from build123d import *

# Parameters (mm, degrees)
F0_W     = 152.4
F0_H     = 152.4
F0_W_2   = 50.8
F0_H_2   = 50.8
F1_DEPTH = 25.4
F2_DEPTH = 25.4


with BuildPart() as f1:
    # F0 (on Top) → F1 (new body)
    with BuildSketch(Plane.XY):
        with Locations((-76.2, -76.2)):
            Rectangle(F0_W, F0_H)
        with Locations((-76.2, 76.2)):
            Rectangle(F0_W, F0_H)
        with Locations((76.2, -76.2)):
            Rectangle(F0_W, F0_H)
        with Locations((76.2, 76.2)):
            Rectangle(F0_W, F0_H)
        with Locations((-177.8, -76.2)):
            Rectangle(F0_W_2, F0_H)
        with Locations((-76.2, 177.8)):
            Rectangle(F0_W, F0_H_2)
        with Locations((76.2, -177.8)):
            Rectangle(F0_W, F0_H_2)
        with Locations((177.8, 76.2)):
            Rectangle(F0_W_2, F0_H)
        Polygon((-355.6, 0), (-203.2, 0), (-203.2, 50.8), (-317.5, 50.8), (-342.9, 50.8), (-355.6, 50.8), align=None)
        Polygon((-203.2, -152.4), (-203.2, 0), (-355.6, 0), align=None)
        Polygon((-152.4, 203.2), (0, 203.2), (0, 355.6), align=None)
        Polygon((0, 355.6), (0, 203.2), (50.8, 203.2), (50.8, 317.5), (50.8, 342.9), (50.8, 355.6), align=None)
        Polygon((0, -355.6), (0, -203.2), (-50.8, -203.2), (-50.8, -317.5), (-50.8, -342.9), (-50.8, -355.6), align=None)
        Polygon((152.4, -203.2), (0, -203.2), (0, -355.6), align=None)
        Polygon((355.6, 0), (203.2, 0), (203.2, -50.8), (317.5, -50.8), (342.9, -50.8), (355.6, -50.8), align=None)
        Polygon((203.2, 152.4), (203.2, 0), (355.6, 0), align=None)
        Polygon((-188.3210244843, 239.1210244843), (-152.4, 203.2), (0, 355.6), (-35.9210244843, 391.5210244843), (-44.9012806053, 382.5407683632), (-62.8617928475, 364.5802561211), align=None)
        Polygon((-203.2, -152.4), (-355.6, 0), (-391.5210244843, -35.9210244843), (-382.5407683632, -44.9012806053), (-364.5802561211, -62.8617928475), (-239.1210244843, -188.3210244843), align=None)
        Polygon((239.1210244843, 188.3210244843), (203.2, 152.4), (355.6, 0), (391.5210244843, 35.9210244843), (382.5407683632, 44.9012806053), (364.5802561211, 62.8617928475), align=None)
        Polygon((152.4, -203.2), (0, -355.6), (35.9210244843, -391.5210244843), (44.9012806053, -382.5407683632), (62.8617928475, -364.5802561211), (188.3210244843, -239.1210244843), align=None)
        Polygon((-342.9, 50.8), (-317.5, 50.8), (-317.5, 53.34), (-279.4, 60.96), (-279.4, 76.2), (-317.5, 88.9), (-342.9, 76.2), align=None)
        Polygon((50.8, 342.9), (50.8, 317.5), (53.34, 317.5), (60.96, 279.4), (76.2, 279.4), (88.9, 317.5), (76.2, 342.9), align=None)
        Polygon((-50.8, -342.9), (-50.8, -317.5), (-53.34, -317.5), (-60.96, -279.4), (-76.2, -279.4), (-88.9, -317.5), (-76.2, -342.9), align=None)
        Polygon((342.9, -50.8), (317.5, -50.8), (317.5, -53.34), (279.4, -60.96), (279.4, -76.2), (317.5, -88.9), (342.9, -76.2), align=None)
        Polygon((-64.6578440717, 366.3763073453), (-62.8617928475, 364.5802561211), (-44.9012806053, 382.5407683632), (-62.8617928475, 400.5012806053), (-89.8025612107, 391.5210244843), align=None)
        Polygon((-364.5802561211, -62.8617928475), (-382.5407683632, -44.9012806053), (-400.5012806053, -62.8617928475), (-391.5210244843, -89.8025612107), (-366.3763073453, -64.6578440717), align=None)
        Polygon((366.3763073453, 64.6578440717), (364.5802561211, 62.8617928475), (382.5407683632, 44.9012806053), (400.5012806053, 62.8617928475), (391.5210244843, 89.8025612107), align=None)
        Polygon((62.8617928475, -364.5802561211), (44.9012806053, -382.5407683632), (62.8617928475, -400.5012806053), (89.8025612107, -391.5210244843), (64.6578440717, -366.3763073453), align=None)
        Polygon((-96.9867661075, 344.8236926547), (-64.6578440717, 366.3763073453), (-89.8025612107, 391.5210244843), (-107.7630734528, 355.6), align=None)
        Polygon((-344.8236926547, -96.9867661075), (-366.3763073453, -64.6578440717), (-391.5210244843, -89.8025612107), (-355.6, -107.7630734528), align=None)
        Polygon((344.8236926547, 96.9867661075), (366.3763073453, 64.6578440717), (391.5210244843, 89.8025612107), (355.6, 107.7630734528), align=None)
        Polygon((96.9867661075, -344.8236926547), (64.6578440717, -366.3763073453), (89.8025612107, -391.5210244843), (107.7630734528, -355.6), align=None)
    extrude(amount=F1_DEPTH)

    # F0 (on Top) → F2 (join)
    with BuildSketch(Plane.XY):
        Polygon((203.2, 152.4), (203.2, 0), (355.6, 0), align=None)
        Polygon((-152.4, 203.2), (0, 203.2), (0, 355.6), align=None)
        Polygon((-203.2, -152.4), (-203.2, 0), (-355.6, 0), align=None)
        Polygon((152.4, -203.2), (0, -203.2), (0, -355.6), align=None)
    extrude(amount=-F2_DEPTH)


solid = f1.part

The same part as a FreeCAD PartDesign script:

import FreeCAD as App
import Part
import Sketcher
Q = App.Units.Quantity


def add_polygon(sketch, points):
    """Adds a closed chain of lines whose ends are joined by coincident constraints."""
    first, n = sketch.GeometryCount, len(points)
    for a, b in zip(points, points[1:] + points[:1]):
        sketch.addGeometry(Part.LineSegment(App.Vector(*a, 0), App.Vector(*b, 0)), False)
    for i in range(n):
        sketch.addConstraint(Sketcher.Constraint("Coincident", first + i, 2, first + (i + 1) % n, 1))

doc = App.newDocument("Part")
body = doc.addObject("PartDesign::Body", "Body")

# Sketch on XY plane
sketch1 = doc.addObject("Sketcher::SketchObject", "Sketch")
body.addObject(sketch1)
sketch1.AttachmentSupport = (doc.XY_Plane, [""])
sketch1.MapMode = "FlatFace"
add_polygon(sketch1, [(0, 152.4), (0, 203.2), (50.8, 203.2), (50.8, 317.5), (53.34, 317.5), (60.96, 279.4), (76.2, 279.4), (88.9, 317.5), (76.2, 342.9), (50.8, 342.9), (50.8, 355.6), (0, 355.6), (-35.921024, 391.521024), (-44.901281, 382.540768), (-62.861793, 400.501281), (-89.802561, 391.521024), (-107.763073, 355.6), (-96.986766, 344.823693), (-64.657844, 366.376307), (-62.861793, 364.580256), (-188.321024, 239.121024), (-152.4, 203.2), (-152.4, 0), (-203.2, 0), (-203.2, 50.8), (-317.5, 50.8), (-317.5, 53.34), (-279.4, 60.96), (-279.4, 76.2), (-317.5, 88.9), (-342.9, 76.2), (-342.9, 50.8), (-355.6, 50.8), (-355.6, 0), (-391.521024, -35.921024), (-382.540768, -44.901281), (-400.501281, -62.861793), (-391.521024, -89.802561), (-355.6, -107.763073), (-344.823693, -96.986766), (-366.376307, -64.657844), (-364.580256, -62.861793), (-239.121024, -188.321024), (-203.2, -152.4), (0, -152.4), (0, -203.2), (-50.8, -203.2), (-50.8, -317.5), (-53.34, -317.5), (-60.96, -279.4), (-76.2, -279.4), (-88.9, -317.5), (-76.2, -342.9), (-50.8, -342.9), (-50.8, -355.6), (0, -355.6), (35.921024, -391.521024), (44.901281, -382.540768), (62.861793, -400.501281), (89.802561, -391.521024), (107.763073, -355.6), (96.986766, -344.823693), (64.657844, -366.376307), (62.861793, -364.580256), (188.321024, -239.121024), (152.4, -203.2), (152.4, 0), (203.2, 0), (203.2, -50.8), (317.5, -50.8), (317.5, -53.34), (279.4, -60.96), (279.4, -76.2), (317.5, -88.9), (342.9, -76.2), (342.9, -50.8), (355.6, -50.8), (355.6, 0), (391.521024, 35.921024), (382.540768, 44.901281), (400.501281, 62.861793), (391.521024, 89.802561), (355.6, 107.763073), (344.823693, 96.986766), (366.376307, 64.657844), (364.580256, 62.861793), (239.121024, 188.321024), (203.2, 152.4)])  # lines 0-87
sketch1.addConstraint([
    Sketcher.Constraint("Vertical", 0),
    Sketcher.Constraint("Horizontal", 1),
    Sketcher.Constraint("Vertical", 2),
    Sketcher.Constraint("Horizontal", 3),
    Sketcher.Constraint("Horizontal", 5),
    Sketcher.Constraint("Horizontal", 8),
    Sketcher.Constraint("Vertical", 9),
    Sketcher.Constraint("Horizontal", 10),
    Sketcher.Constraint("Vertical", 21),
    Sketcher.Constraint("Horizontal", 22),
    Sketcher.Constraint("Vertical", 23),
    Sketcher.Constraint("Horizontal", 24),
    Sketcher.Constraint("Vertical", 25),
    Sketcher.Constraint("Vertical", 27),
    Sketcher.Constraint("Vertical", 30),
    Sketcher.Constraint("Horizontal", 31),
    Sketcher.Constraint("Vertical", 32),
    Sketcher.Constraint("Horizontal", 43),
    Sketcher.Constraint("Vertical", 44),
    Sketcher.Constraint("Horizontal", 45),
    Sketcher.Constraint("Vertical", 46),
    Sketcher.Constraint("Horizontal", 47),
    Sketcher.Constraint("Horizontal", 49),
    Sketcher.Constraint("Horizontal", 52),
    Sketcher.Constraint("Vertical", 53),
    Sketcher.Constraint("Horizontal", 54),
    Sketcher.Constraint("Vertical", 65),
    Sketcher.Constraint("Horizontal", 66),
    Sketcher.Constraint("Vertical", 67),
    Sketcher.Constraint("Horizontal", 68),
    Sketcher.Constraint("Vertical", 69),
    Sketcher.Constraint("Vertical", 71),
    Sketcher.Constraint("Vertical", 74),
    Sketcher.Constraint("Horizontal", 75),
    Sketcher.Constraint("Vertical", 76),
    Sketcher.Constraint("Horizontal", 87),
    Sketcher.Constraint("Symmetric", 0, 2, 44, 2, -1, 1),
    Sketcher.Constraint("Symmetric", 2, 2, 46, 2, -1, 1),
    Sketcher.Constraint("Symmetric", 4, 2, 48, 2, -1, 1),
    Sketcher.Constraint("Symmetric", 6, 2, 50, 2, -1, 1),
    Sketcher.Constraint("Symmetric", 7, 2, 51, 2, -1, 1),
    Sketcher.Constraint("Symmetric", 9, 2, 53, 2, -1, 1),
    Sketcher.Constraint("Symmetric", 11, 2, 55, 2, -1, 1),
    Sketcher.Constraint("Symmetric", 12, 2, 56, 2, -1, 1),
    Sketcher.Constraint("Symmetric", 13, 2, 57, 2, -1, 1),
    Sketcher.Constraint("Symmetric", 14, 2, 58, 2, -1, 1),
    Sketcher.Constraint("Symmetric", 15, 2, 59, 2, -1, 1),
    Sketcher.Constraint("Symmetric", 16, 2, 60, 2, -1, 1),
    Sketcher.Constraint("Symmetric", 17, 2, 61, 2, -1, 1),
    Sketcher.Constraint("Symmetric", 18, 2, 62, 2, -1, 1),
    Sketcher.Constraint("Symmetric", 19, 2, 63, 2, -1, 1),
    Sketcher.Constraint("Symmetric", 20, 2, 64, 2, -1, 1),
    Sketcher.Constraint("Symmetric", 22, 2, 66, 2, -1, 1),
    Sketcher.Constraint("Symmetric", 24, 2, 68, 2, -1, 1),
    Sketcher.Constraint("Symmetric", 26, 2, 70, 2, -1, 1),
    Sketcher.Constraint("Symmetric", 28, 2, 72, 2, -1, 1),
    Sketcher.Constraint("Symmetric", 29, 2, 73, 2, -1, 1),
    Sketcher.Constraint("Symmetric", 31, 2, 75, 2, -1, 1),
    Sketcher.Constraint("Symmetric", 33, 2, 77, 2, -1, 1),
    Sketcher.Constraint("Symmetric", 34, 2, 78, 2, -1, 1),
    Sketcher.Constraint("Symmetric", 35, 2, 79, 2, -1, 1),
    Sketcher.Constraint("Symmetric", 36, 2, 80, 2, -1, 1),
    Sketcher.Constraint("Symmetric", 37, 2, 81, 2, -1, 1),
    Sketcher.Constraint("Symmetric", 38, 2, 82, 2, -1, 1),
    Sketcher.Constraint("Symmetric", 39, 2, 83, 2, -1, 1),
    Sketcher.Constraint("Symmetric", 40, 2, 84, 2, -1, 1),
    Sketcher.Constraint("Symmetric", 41, 2, 85, 2, -1, 1),
    Sketcher.Constraint("Symmetric", 42, 2, 86, 2, -1, 1),
    Sketcher.Constraint("PointOnObject", 0, 2, -2),
    Sketcher.Constraint("PointOnObject", 10, 2, -2),
    Sketcher.Constraint("PointOnObject", 21, 2, -1),
    Sketcher.Constraint("PointOnObject", 32, 2, -1),
    Sketcher.Constraint("PointOnObject", 54, 2, -2),
    Sketcher.Constraint("PointOnObject", 76, 2, -1),
    Sketcher.Constraint("Perpendicular", 11, 12),
    Sketcher.Constraint("Perpendicular", 12, 13),
    Sketcher.Constraint("Parallel", 13, 16),
    Sketcher.Constraint("Parallel", 16, 18),
    Sketcher.Constraint("Perpendicular", 18, 19),
    Sketcher.Constraint("Perpendicular", 19, 20),
    Sketcher.Constraint("Perpendicular", 4, 26),
    Sketcher.Constraint("Perpendicular", 6, 28),
    Sketcher.Constraint("Perpendicular", 7, 29),
    Sketcher.Constraint("Perpendicular", 20, 33),
    Sketcher.Constraint("Perpendicular", 33, 34),
    Sketcher.Constraint("Perpendicular", 34, 35),
    Sketcher.Constraint("Perpendicular", 14, 36),
    Sketcher.Constraint("Perpendicular", 15, 37),
    Sketcher.Constraint("Parallel", 35, 38),
    Sketcher.Constraint("Perpendicular", 17, 39),
    Sketcher.Constraint("Parallel", 38, 40),
    Sketcher.Constraint("Perpendicular", 40, 41),
    Sketcher.Constraint("Perpendicular", 41, 42),
    Sketcher.Constraint("Perpendicular", 26, 48),
    Sketcher.Constraint("Perpendicular", 28, 50),
    Sketcher.Constraint("Perpendicular", 48, 70),
    Sketcher.Constraint("Perpendicular", 50, 72),
    Sketcher.Constraint("Horizontal", 3, 2, 6, 2),
    Sketcher.Constraint("Horizontal", 11, 2, 14, 2),
    Sketcher.Constraint("Horizontal", 10, 2, 15, 2),
    Sketcher.Constraint("Horizontal", 1, 2, 20, 2),
    Sketcher.Constraint("Horizontal", 27, 2, 29, 2),
    Sketcher.Constraint("Horizontal", 24, 2, 30, 2),
    Sketcher.Constraint("Horizontal", 35, 2, 40, 2),
    Sketcher.Constraint("Vertical", 5, 2, 7, 2),
    Sketcher.Constraint("Vertical", 2, 2, 8, 2),
    Sketcher.Constraint("Vertical", 13, 2, 18, 2),
    Sketcher.Constraint("Vertical", 25, 2, 28, 2),
    Sketcher.Constraint("Vertical", 33, 2, 36, 2),
    Sketcher.Constraint("Vertical", 32, 2, 37, 2),
    Sketcher.Constraint("Vertical", 23, 2, 42, 2),
    Sketcher.Constraint("Equal", 10, 22),
    Sketcher.Constraint("Equal", 66, 0),
    Sketcher.Constraint("Equal", 68, 2),
    Sketcher.Constraint("Equal", 75, 9),
    Sketcher.Constraint("Equal", 87, 21),
    Sketcher.Constraint("Equal", 0, 23),
    Sketcher.Constraint("Equal", 47, 25),
    Sketcher.Constraint("Equal", 49, 27),
    Sketcher.Constraint("Equal", 52, 30),
    Sketcher.Constraint("Equal", 7, 14),
    Sketcher.Constraint("Equal", 6, 15),
    Sketcher.Constraint("Equal", 4, 17),
    Sketcher.Constraint("Equal", 11, 20),
    Sketcher.Constraint("Equal", 20, 33),
    Sketcher.Constraint("Equal", 12, 34),
    Sketcher.Constraint("Equal", 13, 35),
    Sketcher.Constraint("Equal", 16, 38),
    Sketcher.Constraint("Equal", 26, 39),
    Sketcher.Constraint("DistanceX", 1, 1, 1, 2, Q("2 in")),
    Sketcher.Constraint("DistanceX", 8, 2, 8, 1, Q("1 in")),
    Sketcher.Constraint("DistanceX", 43, 1, 43, 2, Q("8 in")),
    Sketcher.Constraint("Distance", 11, Q("2 in")),
    Sketcher.Constraint("Distance", 13, Q("1 in")),
    Sketcher.Constraint("DistanceX", 3, 1, 3, 2, Q("0.1 in")),
    Sketcher.Constraint("DistanceX", 5, 1, 5, 2, Q("0.6 in")),
    Sketcher.Constraint("DistanceX", 24, 2, 24, 1, Q("4.5 in")),
    Sketcher.Constraint("DistanceX", 31, 2, 31, 1, Q("0.5 in")),
    Sketcher.Constraint("DistanceY", -1, 1, 4, 2, Q("11 in")),
    Sketcher.Constraint("DistanceY", -1, 1, 9, 2, Q("14 in")),
    Sketcher.Constraint("Angle", 11, Q("135 deg")),
    Sketcher.Constraint("Distance", 12, Q("0.5 in")),
    Sketcher.Constraint("Distance", 16, Q("0.6 in")),
    Sketcher.Constraint("Distance", 18, Q("0.1 in")),
])
pad1 = doc.addObject("PartDesign::Pad", "Pad")
body.addObject(pad1)
pad1.Profile = sketch1
pad1.Length = Q("1 in")

# Sketch on XY plane
sketch2 = doc.addObject("Sketcher::SketchObject", "Sketch001")
body.addObject(sketch2)
sketch2.AttachmentSupport = (doc.XY_Plane, [""])
sketch2.MapMode = "FlatFace"
add_polygon(sketch2, [(203.2, 152.4), (203.2, 0), (355.6, 0)])  # lines 0-2
add_polygon(sketch2, [(-152.4, 203.2), (0, 203.2), (0, 355.6)])  # lines 3-5
add_polygon(sketch2, [(-203.2, -152.4), (-203.2, 0), (-355.6, 0)])  # lines 6-8
add_polygon(sketch2, [(152.4, -203.2), (0, -203.2), (0, -355.6)])  # lines 9-11
sketch2.addConstraint([
    Sketcher.Constraint("Vertical", 0),
    Sketcher.Constraint("Horizontal", 1),
    Sketcher.Constraint("Horizontal", 3),
    Sketcher.Constraint("Vertical", 4),
    Sketcher.Constraint("Vertical", 6),
    Sketcher.Constraint("Horizontal", 7),
    Sketcher.Constraint("Horizontal", 9),
    Sketcher.Constraint("Vertical", 10),
    Sketcher.Constraint("Symmetric", 0, 2, 6, 2, -1, 1),
    Sketcher.Constraint("Symmetric", 3, 2, 9, 2, -1, 1),
    Sketcher.Constraint("Symmetric", 1, 2, 7, 2, -2),
    Sketcher.Constraint("Symmetric", 4, 2, 10, 2, -1),
    Sketcher.Constraint("Perpendicular", 2, 5),
    Sketcher.Constraint("Perpendicular", 5, 8),
    Sketcher.Constraint("Perpendicular", 8, 11),
    Sketcher.Constraint("Equal", 1, 3),
    Sketcher.Constraint("Equal", 9, 0),
    Sketcher.Constraint("DistanceX", 1, 1, 1, 2, Q("6 in")),
    Sketcher.Constraint("DistanceX", -1, 1, 0, 2, Q("8 in")),
    Sketcher.Constraint("DistanceY", -1, 1, 3, 2, Q("8 in")),
])
pad2 = doc.addObject("PartDesign::Pad", "Pad001")
body.addObject(pad2)
pad2.Profile = sketch2
pad2.Length = Q("1 in")
pad2.Reversed = True

doc.recompute()
